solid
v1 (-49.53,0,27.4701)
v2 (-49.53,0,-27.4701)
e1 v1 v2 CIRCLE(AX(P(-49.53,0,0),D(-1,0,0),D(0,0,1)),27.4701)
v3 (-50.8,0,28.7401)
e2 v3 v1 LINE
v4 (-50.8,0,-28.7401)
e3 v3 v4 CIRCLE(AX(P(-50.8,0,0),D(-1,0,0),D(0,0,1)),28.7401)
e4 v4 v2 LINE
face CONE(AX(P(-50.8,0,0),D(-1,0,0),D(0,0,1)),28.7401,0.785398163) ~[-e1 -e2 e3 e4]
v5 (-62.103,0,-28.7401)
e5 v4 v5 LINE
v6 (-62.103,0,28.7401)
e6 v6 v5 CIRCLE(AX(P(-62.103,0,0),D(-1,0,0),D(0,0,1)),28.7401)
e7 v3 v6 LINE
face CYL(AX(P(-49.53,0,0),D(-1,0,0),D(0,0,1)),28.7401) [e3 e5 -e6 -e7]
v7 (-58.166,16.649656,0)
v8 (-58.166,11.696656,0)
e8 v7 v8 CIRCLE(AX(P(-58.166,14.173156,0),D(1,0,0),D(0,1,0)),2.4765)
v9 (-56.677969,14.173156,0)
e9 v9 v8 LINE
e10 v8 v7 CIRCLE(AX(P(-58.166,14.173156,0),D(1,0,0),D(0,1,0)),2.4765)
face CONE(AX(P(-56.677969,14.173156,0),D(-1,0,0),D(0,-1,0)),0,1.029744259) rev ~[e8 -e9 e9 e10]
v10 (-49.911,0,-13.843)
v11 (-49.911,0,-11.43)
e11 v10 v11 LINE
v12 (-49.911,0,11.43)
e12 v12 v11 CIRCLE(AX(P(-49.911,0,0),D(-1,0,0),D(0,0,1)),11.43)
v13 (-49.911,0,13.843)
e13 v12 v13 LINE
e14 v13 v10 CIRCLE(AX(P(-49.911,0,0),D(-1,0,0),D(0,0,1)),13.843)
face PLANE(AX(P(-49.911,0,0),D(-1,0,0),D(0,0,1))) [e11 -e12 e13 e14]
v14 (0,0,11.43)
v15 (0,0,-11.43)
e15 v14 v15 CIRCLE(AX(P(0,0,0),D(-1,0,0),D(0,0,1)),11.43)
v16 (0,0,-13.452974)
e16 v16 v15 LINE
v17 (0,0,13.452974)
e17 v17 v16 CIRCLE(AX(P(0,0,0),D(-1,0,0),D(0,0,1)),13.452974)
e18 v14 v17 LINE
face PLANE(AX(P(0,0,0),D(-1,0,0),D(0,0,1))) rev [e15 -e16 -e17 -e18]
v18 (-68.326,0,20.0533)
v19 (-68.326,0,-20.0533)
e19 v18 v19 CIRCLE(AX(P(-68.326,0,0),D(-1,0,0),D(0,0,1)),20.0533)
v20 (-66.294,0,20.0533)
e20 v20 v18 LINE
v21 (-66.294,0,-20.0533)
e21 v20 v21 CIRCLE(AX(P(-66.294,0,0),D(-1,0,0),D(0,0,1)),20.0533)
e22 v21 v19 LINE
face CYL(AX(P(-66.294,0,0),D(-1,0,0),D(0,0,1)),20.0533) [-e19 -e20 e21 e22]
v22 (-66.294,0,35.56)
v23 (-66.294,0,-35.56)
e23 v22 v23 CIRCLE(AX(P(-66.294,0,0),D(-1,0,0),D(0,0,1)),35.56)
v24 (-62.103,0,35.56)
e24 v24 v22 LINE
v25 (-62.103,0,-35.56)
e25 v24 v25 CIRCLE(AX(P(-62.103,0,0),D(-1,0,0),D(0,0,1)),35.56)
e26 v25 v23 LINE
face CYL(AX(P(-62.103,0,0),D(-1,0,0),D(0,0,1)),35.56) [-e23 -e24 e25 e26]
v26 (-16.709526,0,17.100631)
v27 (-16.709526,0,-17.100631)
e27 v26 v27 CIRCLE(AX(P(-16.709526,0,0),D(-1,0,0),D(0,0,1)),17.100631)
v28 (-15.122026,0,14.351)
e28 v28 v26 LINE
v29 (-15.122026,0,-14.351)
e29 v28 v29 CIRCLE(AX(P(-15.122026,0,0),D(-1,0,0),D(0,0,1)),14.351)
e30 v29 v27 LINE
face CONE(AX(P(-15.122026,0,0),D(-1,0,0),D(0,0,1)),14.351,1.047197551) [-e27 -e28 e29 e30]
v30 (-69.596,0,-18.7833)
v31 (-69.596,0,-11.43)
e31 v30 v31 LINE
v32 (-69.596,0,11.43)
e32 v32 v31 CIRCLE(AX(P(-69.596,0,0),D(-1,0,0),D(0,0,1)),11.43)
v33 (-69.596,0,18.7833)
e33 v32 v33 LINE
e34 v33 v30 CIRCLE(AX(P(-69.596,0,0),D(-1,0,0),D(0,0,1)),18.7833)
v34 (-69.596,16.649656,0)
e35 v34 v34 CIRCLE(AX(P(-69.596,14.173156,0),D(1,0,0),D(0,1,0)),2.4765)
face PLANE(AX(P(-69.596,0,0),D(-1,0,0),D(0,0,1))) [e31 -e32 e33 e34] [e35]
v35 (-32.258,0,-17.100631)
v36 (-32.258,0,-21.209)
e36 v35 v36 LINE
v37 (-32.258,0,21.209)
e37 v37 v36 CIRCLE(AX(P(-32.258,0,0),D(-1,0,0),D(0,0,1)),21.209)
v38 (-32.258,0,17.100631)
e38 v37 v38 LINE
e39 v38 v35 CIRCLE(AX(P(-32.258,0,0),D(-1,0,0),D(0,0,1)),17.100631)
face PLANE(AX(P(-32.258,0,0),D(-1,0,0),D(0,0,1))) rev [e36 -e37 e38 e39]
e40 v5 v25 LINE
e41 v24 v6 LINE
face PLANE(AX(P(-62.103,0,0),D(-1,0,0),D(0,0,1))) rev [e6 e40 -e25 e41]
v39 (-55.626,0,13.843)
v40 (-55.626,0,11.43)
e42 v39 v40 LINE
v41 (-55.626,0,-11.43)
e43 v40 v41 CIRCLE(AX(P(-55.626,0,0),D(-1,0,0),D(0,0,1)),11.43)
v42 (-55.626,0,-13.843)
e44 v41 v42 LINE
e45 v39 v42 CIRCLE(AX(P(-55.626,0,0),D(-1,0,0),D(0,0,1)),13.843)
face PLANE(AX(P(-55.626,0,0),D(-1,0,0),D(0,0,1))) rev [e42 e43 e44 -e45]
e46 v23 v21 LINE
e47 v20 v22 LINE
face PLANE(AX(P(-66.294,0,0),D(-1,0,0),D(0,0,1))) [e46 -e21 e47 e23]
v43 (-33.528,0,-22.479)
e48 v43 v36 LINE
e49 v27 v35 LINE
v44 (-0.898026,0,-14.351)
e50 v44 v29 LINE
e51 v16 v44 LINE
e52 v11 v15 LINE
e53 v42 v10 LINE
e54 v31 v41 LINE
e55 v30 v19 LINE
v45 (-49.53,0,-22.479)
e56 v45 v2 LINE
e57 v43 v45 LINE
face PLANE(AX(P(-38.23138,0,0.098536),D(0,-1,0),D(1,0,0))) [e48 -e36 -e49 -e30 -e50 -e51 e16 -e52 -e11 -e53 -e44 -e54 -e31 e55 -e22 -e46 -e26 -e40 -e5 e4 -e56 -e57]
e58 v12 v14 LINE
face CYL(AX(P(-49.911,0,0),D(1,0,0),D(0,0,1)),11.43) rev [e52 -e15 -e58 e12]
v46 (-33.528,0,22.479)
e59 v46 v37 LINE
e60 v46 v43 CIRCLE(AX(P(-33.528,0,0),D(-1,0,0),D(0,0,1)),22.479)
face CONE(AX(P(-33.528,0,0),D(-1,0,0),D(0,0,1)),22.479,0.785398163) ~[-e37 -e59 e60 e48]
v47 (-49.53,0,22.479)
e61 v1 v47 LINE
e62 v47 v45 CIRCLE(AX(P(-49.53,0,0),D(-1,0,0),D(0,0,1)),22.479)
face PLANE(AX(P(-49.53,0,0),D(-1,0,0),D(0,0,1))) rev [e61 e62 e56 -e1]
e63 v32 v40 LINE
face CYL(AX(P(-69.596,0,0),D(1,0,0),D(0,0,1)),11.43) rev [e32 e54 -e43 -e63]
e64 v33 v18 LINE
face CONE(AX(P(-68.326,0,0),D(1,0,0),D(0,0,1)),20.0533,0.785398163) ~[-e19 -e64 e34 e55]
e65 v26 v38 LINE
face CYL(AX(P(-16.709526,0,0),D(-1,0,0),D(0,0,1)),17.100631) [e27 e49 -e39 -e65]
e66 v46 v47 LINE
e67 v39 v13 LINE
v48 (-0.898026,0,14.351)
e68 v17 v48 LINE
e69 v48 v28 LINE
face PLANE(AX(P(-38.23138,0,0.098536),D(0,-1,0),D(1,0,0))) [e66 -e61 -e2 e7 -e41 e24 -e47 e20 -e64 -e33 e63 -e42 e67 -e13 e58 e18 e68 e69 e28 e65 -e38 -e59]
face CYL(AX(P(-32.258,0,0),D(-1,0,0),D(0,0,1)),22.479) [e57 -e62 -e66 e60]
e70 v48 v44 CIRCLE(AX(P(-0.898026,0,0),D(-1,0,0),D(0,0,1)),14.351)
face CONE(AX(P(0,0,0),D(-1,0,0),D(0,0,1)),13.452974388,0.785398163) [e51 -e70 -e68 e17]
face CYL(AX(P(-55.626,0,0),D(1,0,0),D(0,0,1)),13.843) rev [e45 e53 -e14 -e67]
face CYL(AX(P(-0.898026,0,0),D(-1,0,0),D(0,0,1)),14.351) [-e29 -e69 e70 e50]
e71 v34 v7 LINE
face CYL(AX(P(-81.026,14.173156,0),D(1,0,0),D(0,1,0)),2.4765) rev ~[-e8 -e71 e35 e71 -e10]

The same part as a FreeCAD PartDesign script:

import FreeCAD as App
import Part
import Sketcher
from FreeCAD import Vector
Q = App.Units.Quantity


def edges_at(feature, points):
    """Names of the edges that pass closest to the given points."""
    edges = feature.Shape.Edges
    near = lambda p: min(range(len(edges)), key=lambda i: edges[i].distToShape(Part.Vertex(*p))[0])
    return sorted({f"Edge{near(p) + 1}" for p in points})


def add_polygon(sketch, points):
    """Adds a closed chain of lines whose ends are joined by coincident constraints."""
    first, n = sketch.GeometryCount, len(points)
    for a, b in zip(points, points[1:] + points[:1]):
        sketch.addGeometry(Part.LineSegment(App.Vector(*a, 0), App.Vector(*b, 0)), False)
    for i in range(n):
        sketch.addConstraint(Sketcher.Constraint("Coincident", first + i, 2, first + (i + 1) % n, 1))

doc = App.newDocument("Part")
params = doc.addObject("Spreadsheet::Sheet", "Params")
for row, (alias, value) in enumerate([
    ("sketch1_width", "0.56 in"),
    ("sketch1_width2", "0.68 in"),
    ("sketch1_width3", "0.13 in"),
    ("sketch1_width4", "0.55 in"),
    ("sketch1_length", "0.05 in"),
    ("revolution_angle", "360 deg"),
    ("chamfer_size", "0.05 in"),
    ("sketch3_diameter", "0.195 in"),
    ("hole_diameter", "0.195 in"),
    ("hole_depth", "0.45 in"),
], start=1):
    params.set(f"A{row}", alias)
    params.set(f"B{row}", "=" + value)
    params.setAlias(f"B{row}", alias)

body = doc.addObject("PartDesign::Body", "Body")

# Sketch on XZ plane
sketch1 = body.newObject("Sketcher::SketchObject", "Sketch")
sketch1.AttachmentSupport = (doc.getObject("XZ_Plane"), [""])
sketch1.MapMode = "FlatFace"
add_polygon(sketch1, [(-49.911, 11.43), (0, 11.43), (0, 13.452974), (-0.898026, 14.351), (-15.122026, 14.351), (-16.709526, 17.100631), (-32.258, 17.100631), (-32.258, 22.479), (-49.53, 22.479), (-49.53, 28.7401), (-62.103, 28.7401), (-62.103, 35.56), (-66.294, 35.56), (-66.294, 20.0533), (-69.596, 20.0533), (-69.596, 11.43), (-55.626, 11.43), (-55.626, 13.843), (-49.911, 13.843)])  # lines 0-18
sketch1.addConstraint(Sketcher.Constraint("Horizontal", 0))
sketch1.addConstraint(Sketcher.Constraint("Vertical", 1))
sketch1.addConstraint(Sketcher.Constraint("Horizontal", 3))
sketch1.addConstraint(Sketcher.Constraint("Horizontal", 5))
sketch1.addConstraint(Sketcher.Constraint("Vertical", 6))
sketch1.addConstraint(Sketcher.Constraint("Horizontal", 7))
sketch1.addConstraint(Sketcher.Constraint("Vertical", 8))
sketch1.addConstraint(Sketcher.Constraint("Horizontal", 9))
sketch1.addConstraint(Sketcher.Constraint("Vertical", 10))
sketch1.addConstraint(Sketcher.Constraint("Horizontal", 11))
sketch1.addConstraint(Sketcher.Constraint("Vertical", 12))
sketch1.addConstraint(Sketcher.Constraint("Horizontal", 13))
sketch1.addConstraint(Sketcher.Constraint("Vertical", 14))
sketch1.addConstraint(Sketcher.Constraint("Horizontal", 15))
sketch1.addConstraint(Sketcher.Constraint("Vertical", 16))
sketch1.addConstraint(Sketcher.Constraint("Horizontal", 17))
sketch1.addConstraint(Sketcher.Constraint("Vertical", 18))
sketch1.addConstraint(Sketcher.Constraint("PointOnObject", 0, 2, -2))
sketch1.addConstraint(Sketcher.Constraint("Horizontal", 0, 2, 14, 2))
sketch1.addConstraint(Sketcher.Constraint("Angle", 2, Q("135 deg")))
sketch1.addConstraint(Sketcher.Constraint("Angle", 4, Q("120 deg")))
sketch1.addConstraint(Sketcher.Constraint("DistanceX", 3, 2, 3, 1, Q("0.56 in")))
sketch1.addConstraint(Sketcher.Constraint("DistanceX", 7, 2, 7, 1, Q("0.68 in")))
sketch1.addConstraint(Sketcher.Constraint("DistanceX", 13, 2, 13, 1, Q("0.13 in")))
sketch1.addConstraint(Sketcher.Constraint("DistanceX", 15, 1, 15, 2, Q("0.55 in")))
sketch1.addConstraint(Sketcher.Constraint("DistanceY", -1, 1, 10, 2, Q("1.4 in")))
sketch1.addConstraint(Sketcher.Constraint("Distance", 2, Q("0.05 in")))
sketch1.addConstraint(Sketcher.Constraint("DistanceX", 0, 1, 0, 2, Q("1.965 in")))
sketch1.addConstraint(Sketcher.Constraint("DistanceX", 9, 2, 9, 1, Q("0.495 in")))
sketch1.addConstraint(Sketcher.Constraint("DistanceX", 11, 2, 11, 1, Q("0.165 in")))
sketch1.addConstraint(Sketcher.Constraint("DistanceX", 17, 1, 17, 2, Q("0.225 in")))
sketch1.addConstraint(Sketcher.Constraint("DistanceY", 16, 1, 16, 2, Q("0.095 in")))
sketch1.addConstraint(Sketcher.Constraint("DistanceY", -1, 1, 0, 2, Q("0.45 in")))
sketch1.addConstraint(Sketcher.Constraint("DistanceY", 3, 2, 6, 2, Q("0.32 in")))
sketch1.addConstraint(Sketcher.Constraint("DistanceY", 16, 2, 7, 2, Q("0.34 in")))
sketch1.addConstraint(Sketcher.Constraint("Distance", 4, Q("0.125 in")))
sketch1.addConstraint(Sketcher.Constraint("DistanceY", 8, 1, 8, 2, Q("0.2465 in")))
sketch1.addConstraint(Sketcher.Constraint("DistanceY", 12, 2, 12, 1, Q("0.6105 in")))
sketch1.setExpression("Constraints[40]", "Params.sketch1_width")
sketch1.setExpression("Constraints[41]", "Params.sketch1_width2")
sketch1.setExpression("Constraints[42]", "Params.sketch1_width3")
sketch1.setExpression("Constraints[43]", "Params.sketch1_width4")
sketch1.setExpression("Constraints[45]", "Params.sketch1_length")
revolution = body.newObject("PartDesign::Revolution", "Revolution")
revolution.Profile = sketch1
revolution.ReferenceAxis = (sketch1, ["H_Axis"])
revolution.setExpression("Angle", "Params.revolution_angle")

# Sketch on XZ plane
sketch2 = body.newObject("Sketcher::SketchObject", "Sketch001")
sketch2.AttachmentSupport = (doc.getObject("XZ_Plane"), [""])
sketch2.MapMode = "FlatFace"
add_polygon(sketch2, [(-76.462761, 39.413795), (-76.462761, -39.216723), (0, -39.216723), (0, 39.413795)])  # lines 0-3
sketch2.addConstraint(Sketcher.Constraint("Vertical", 0))
sketch2.addConstraint(Sketcher.Constraint("Horizontal", 1))
sketch2.addConstraint(Sketcher.Constraint("Vertical", 2))
sketch2.addConstraint(Sketcher.Constraint("Horizontal", 3))
sketch2.addConstraint(Sketcher.Constraint("PointOnObject", 1, 2, -2))
sketch2.addConstraint(Sketcher.Constraint("DistanceX", 1, 1, 1, 2, Q("76.462761 mm")))
sketch2.addConstraint(Sketcher.Constraint("DistanceY", 0, 2, 0, 1, Q("78.630518 mm")))
sketch2.addConstraint(Sketcher.Constraint("DistanceY", 0, 2, -1, 1, Q("39.216723 mm")))
pocket1 = body.newObject("PartDesign::Pocket", "Pocket")
pocket1.Profile = sketch2
pocket1.Type = "ThroughAll"
pocket1.Reversed = True
doc.recompute()

chamfer = body.newObject("PartDesign::Chamfer", "Chamfer")
chamfer.Base = (pocket1, edges_at(pocket1, [(-69.596, 20.053, 0), (-49.53, 28.74, 0), (-32.258, 22.479, 0)]))
chamfer.setExpression("Size", "Params.chamfer_size")

# Sketch on YZ plane
sketch3 = body.newObject("Sketcher::SketchObject", "Sketch002")
sketch3.AttachmentSupport = (doc.getObject("YZ_Plane"), [""])
sketch3.MapMode = "FlatFace"
sketch3.AttachmentOffset = App.Placement(Vector(0, 0, -2.74 * 25.4), App.Rotation())
sketch3.addGeometry(Part.Circle(Vector(14.173156, 0, 0), Vector(0, 0, 1), 2.4765), False)
sketch3.addConstraint(Sketcher.Constraint("PointOnObject", 0, 3, -1))
sketch3.addConstraint(Sketcher.Constraint("Diameter", 0, Q("0.195 in")))
sketch3.addConstraint(Sketcher.Constraint("DistanceX", -1, 1, 0, 3, Q("14.173156 mm")))
sketch3.setExpression("Constraints[1]", "Params.sketch3_diameter")
doc.recompute()
hole = body.newObject("PartDesign::Hole", "Hole")
hole.Profile = sketch3
hole.ThreadType = "None"
hole.setExpression("Diameter", "Params.hole_diameter")
hole.DepthType = "Dimension"
hole.setExpression("Depth", "Params.hole_depth")
hole.DrillPoint = "Angled"
hole.DrillPointAngle = 118
hole.Reversed = True

doc.recompute()
